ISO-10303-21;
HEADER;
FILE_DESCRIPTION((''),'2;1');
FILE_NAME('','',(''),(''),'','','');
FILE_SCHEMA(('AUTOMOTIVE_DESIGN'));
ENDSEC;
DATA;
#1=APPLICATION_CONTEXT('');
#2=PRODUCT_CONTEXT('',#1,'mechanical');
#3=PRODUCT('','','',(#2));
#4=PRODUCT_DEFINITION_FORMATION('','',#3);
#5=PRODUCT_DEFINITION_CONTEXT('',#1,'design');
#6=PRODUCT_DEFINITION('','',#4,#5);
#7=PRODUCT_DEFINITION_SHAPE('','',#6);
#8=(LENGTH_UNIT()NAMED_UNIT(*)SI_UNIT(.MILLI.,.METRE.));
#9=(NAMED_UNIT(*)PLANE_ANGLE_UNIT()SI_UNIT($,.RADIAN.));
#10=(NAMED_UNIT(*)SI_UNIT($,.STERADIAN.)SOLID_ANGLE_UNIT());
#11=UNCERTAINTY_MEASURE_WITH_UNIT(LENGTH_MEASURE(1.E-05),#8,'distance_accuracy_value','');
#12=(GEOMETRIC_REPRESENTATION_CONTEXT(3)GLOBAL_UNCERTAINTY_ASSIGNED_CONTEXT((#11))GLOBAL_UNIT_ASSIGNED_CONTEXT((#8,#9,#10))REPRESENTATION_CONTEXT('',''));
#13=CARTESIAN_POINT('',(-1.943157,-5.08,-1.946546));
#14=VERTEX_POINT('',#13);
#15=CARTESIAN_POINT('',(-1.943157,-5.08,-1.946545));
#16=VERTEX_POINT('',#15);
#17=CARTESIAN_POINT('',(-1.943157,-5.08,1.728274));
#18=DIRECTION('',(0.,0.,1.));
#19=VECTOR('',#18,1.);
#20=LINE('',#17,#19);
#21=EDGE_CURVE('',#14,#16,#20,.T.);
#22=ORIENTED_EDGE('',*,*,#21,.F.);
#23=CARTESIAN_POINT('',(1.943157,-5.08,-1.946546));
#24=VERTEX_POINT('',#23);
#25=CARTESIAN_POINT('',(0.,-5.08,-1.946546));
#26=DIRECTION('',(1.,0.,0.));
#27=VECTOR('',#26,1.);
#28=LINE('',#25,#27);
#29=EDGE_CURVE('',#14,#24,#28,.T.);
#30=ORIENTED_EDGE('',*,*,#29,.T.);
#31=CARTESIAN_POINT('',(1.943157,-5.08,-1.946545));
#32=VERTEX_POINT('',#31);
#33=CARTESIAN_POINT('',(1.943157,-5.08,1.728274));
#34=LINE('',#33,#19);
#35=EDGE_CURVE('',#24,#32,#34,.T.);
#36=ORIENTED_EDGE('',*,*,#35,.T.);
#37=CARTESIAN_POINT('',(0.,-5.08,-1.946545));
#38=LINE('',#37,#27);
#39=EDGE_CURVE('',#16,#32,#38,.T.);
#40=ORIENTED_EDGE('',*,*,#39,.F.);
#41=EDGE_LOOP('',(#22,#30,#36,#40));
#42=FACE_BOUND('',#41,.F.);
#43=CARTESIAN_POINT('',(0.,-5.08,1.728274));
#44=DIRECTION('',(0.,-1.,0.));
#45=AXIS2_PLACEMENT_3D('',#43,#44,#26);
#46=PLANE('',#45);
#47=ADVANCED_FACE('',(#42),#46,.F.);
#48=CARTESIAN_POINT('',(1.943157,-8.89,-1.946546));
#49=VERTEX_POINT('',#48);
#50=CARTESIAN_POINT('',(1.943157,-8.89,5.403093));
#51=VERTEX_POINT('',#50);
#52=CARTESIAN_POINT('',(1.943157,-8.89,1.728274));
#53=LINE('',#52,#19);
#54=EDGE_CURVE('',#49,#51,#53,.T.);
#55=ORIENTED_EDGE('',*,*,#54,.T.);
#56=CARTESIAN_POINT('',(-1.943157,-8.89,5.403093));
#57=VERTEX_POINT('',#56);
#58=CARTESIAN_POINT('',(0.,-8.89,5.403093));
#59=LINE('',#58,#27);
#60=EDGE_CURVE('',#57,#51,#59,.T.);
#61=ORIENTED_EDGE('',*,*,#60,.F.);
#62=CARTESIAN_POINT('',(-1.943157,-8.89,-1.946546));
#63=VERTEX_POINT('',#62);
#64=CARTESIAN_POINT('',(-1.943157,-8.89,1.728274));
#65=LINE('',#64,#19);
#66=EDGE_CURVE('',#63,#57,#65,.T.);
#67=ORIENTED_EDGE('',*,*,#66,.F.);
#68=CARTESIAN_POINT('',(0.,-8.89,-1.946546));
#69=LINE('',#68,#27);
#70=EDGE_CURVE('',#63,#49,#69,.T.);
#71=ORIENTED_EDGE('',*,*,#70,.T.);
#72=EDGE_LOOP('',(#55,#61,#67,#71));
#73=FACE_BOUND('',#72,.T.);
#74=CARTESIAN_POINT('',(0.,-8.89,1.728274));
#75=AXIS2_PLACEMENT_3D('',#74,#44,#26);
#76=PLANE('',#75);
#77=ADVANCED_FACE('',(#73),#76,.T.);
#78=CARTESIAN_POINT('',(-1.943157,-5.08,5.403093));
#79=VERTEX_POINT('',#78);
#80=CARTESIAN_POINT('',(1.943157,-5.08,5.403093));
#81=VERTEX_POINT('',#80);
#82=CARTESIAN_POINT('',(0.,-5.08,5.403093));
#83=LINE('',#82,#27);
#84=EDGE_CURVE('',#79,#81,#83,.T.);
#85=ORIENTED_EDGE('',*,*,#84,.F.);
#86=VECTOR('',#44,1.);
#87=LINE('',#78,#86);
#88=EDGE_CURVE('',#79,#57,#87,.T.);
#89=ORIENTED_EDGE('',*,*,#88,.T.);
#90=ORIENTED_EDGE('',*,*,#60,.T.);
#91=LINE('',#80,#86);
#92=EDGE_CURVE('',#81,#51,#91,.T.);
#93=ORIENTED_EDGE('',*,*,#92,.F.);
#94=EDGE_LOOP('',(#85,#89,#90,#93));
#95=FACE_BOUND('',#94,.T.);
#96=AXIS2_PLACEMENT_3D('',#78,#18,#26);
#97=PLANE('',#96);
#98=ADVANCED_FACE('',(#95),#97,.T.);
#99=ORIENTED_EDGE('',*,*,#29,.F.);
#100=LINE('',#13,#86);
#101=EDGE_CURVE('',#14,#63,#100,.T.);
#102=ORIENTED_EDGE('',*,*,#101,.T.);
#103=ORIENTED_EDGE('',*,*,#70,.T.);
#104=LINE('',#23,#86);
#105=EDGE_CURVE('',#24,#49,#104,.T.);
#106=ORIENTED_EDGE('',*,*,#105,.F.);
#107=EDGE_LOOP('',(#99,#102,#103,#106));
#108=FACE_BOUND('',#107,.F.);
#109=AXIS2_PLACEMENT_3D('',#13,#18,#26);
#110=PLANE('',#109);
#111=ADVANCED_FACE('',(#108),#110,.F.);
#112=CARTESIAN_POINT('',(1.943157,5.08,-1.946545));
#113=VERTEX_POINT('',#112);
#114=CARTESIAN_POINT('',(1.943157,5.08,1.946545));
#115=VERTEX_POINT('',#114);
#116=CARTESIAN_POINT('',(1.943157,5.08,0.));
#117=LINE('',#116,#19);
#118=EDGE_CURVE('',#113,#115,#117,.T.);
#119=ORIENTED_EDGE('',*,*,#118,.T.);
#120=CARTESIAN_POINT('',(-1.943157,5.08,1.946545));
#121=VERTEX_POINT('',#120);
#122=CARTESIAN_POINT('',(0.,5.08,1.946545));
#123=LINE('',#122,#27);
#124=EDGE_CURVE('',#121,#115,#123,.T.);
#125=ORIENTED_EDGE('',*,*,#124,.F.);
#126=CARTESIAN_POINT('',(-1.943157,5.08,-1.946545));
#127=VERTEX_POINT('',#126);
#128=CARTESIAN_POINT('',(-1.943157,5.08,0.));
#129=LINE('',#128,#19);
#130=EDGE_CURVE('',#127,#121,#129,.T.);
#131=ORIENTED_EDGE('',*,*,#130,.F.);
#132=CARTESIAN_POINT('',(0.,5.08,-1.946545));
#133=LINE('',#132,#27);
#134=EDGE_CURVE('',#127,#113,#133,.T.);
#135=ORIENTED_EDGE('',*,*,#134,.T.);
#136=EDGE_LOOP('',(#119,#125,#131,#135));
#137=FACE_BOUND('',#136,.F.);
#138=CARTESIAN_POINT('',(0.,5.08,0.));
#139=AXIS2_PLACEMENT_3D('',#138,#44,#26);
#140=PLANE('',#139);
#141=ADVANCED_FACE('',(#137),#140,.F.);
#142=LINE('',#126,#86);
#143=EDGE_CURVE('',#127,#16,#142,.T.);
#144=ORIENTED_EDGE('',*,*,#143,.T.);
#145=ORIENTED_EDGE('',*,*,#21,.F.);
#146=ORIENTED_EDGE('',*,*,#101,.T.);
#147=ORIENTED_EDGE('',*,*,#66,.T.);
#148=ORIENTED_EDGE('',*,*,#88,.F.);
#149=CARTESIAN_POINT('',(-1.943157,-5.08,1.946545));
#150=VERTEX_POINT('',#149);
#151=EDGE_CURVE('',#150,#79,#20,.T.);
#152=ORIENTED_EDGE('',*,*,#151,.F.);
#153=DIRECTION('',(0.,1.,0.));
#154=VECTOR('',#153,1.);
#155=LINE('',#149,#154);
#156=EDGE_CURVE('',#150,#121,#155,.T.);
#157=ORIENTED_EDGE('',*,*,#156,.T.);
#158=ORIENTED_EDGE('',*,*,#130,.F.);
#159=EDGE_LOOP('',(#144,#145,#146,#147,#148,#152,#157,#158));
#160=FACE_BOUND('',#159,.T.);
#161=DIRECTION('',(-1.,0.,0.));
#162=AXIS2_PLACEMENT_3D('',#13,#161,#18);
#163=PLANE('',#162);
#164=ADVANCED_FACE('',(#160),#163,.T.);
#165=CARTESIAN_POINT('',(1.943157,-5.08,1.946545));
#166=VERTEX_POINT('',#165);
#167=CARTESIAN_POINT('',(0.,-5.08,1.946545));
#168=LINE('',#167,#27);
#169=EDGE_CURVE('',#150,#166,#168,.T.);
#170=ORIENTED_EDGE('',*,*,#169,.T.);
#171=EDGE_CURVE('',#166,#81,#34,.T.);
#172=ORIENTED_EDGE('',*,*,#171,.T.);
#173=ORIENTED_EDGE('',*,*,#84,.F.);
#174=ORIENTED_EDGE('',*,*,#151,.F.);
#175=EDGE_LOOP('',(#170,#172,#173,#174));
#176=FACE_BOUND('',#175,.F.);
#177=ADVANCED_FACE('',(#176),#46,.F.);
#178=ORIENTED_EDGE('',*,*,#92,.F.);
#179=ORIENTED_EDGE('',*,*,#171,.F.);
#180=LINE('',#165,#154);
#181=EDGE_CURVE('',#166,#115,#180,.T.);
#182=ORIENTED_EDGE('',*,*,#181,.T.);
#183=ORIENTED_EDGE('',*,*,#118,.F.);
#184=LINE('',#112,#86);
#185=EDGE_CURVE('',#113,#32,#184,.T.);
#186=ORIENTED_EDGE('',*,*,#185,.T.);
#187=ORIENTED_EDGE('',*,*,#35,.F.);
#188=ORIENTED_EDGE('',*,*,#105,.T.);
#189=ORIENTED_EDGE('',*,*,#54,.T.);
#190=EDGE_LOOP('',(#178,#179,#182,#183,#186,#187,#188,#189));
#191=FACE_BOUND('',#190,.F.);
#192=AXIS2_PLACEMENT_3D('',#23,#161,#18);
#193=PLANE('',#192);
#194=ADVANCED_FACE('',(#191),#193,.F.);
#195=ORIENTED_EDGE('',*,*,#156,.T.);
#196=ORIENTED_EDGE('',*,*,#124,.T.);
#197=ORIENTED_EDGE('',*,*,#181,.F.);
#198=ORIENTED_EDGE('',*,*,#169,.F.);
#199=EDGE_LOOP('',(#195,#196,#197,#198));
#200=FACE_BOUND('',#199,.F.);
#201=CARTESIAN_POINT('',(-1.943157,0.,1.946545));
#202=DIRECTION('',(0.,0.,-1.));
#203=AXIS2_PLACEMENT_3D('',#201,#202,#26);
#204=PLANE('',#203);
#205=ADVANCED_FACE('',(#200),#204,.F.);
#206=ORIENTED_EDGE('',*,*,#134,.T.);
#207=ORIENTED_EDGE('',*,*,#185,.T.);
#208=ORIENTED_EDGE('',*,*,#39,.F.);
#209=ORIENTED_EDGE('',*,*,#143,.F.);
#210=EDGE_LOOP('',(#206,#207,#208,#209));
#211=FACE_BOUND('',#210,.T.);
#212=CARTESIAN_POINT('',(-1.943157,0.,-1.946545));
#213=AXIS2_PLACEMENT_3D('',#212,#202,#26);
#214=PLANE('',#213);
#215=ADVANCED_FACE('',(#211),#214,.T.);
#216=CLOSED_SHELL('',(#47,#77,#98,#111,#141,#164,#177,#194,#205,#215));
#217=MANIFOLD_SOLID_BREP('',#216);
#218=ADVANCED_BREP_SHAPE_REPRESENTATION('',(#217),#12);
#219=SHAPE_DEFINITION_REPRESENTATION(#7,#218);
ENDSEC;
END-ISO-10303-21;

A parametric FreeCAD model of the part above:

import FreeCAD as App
import Part
import Sketcher
Q = App.Units.Quantity

doc = App.newDocument("Part")
body = doc.addObject("PartDesign::Body", "Body")

# Sketch on XZ plane
sketch1 = body.newObject("Sketcher::SketchObject", "Sketch")
sketch1.AttachmentSupport = (doc.getObject("XZ_Plane"), [""])
sketch1.MapMode = "FlatFace"
sketch1.addGeometry([
    Part.LineSegment(App.Vector(-1.9, 1.9, 0), App.Vector(-1.9, -1.9, 0)),
    Part.LineSegment(App.Vector(-1.9, -1.9, 0), App.Vector(1.9, -1.9, 0)),
    Part.LineSegment(App.Vector(1.9, -1.9, 0), App.Vector(1.9, 1.9, 0)),
    Part.LineSegment(App.Vector(1.9, 1.9, 0), App.Vector(-1.9, 1.9, 0)),
], False)
sketch1.addConstraint([
    Sketcher.Constraint("Coincident", 0, 2, 1, 1),
    Sketcher.Constraint("Coincident", 1, 2, 2, 1),
    Sketcher.Constraint("Coincident", 2, 2, 3, 1),
    Sketcher.Constraint("Coincident", 3, 2, 0, 1),
    Sketcher.Constraint("Vertical", 0),
    Sketcher.Constraint("Horizontal", 1),
    Sketcher.Constraint("Vertical", 2),
    Sketcher.Constraint("Horizontal", 3),
    Sketcher.Constraint("Symmetric", 0, 2, 2, 2, -1, 1),
    Sketcher.Constraint("DistanceY", 0, 2, 0, 1, 3.89309),
    Sketcher.Constraint("DistanceX", 1, 1, 1, 2, 3.886314),
])
pad1 = body.newObject("PartDesign::Pad", "Pad")
pad1.Profile = sketch1
pad1.Type = "TwoLengths"
pad1.Length = Q("0.2 in")
pad1.Length2 = Q("0.2 in")

# Sketch on XZ plane
sketch2 = body.newObject("Sketcher::SketchObject", "Sketch001")
sketch2.AttachmentSupport = (doc.getObject("XZ_Plane"), [""])
sketch2.MapMode = "FlatFace"
sketch2.AttachmentOffset = App.Placement(App.Vector(0, 0, 0.2 * 25.4), App.Rotation())
sketch2.addGeometry([
    Part.LineSegment(App.Vector(-1.9, 5.4, 0), App.Vector(-1.9, -1.9, 0)),
    Part.LineSegment(App.Vector(-1.9, -1.9, 0), App.Vector(1.9, -1.9, 0)),
    Part.LineSegment(App.Vector(1.9, -1.9, 0), App.Vector(1.9, 5.4, 0)),
    Part.LineSegment(App.Vector(1.9, 5.4, 0), App.Vector(-1.9, 5.4, 0)),
], False)
sketch2.addConstraint([
    Sketcher.Constraint("Coincident", 0, 2, 1, 1),
    Sketcher.Constraint("Coincident", 1, 2, 2, 1),
    Sketcher.Constraint("Coincident", 2, 2, 3, 1),
    Sketcher.Constraint("Coincident", 3, 2, 0, 1),
    Sketcher.Constraint("Vertical", 0),
    Sketcher.Constraint("Horizontal", 1),
    Sketcher.Constraint("Vertical", 2),
    Sketcher.Constraint("Horizontal", 3),
    Sketcher.Constraint("DistanceY", 0, 2, 0, 1, 7.349639),
    Sketcher.Constraint("DistanceX", 1, 1, 1, 2, 3.886314),
    Sketcher.Constraint("DistanceX", 0, 2, -1, 1, 1.943157),
    Sketcher.Constraint("DistanceY", 0, 2, -1, 1, 1.946546),
])
pad2 = body.newObject("PartDesign::Pad", "Pad001")
pad2.Profile = sketch2
pad2.Length = Q("0.15 in")

doc.recompute()
